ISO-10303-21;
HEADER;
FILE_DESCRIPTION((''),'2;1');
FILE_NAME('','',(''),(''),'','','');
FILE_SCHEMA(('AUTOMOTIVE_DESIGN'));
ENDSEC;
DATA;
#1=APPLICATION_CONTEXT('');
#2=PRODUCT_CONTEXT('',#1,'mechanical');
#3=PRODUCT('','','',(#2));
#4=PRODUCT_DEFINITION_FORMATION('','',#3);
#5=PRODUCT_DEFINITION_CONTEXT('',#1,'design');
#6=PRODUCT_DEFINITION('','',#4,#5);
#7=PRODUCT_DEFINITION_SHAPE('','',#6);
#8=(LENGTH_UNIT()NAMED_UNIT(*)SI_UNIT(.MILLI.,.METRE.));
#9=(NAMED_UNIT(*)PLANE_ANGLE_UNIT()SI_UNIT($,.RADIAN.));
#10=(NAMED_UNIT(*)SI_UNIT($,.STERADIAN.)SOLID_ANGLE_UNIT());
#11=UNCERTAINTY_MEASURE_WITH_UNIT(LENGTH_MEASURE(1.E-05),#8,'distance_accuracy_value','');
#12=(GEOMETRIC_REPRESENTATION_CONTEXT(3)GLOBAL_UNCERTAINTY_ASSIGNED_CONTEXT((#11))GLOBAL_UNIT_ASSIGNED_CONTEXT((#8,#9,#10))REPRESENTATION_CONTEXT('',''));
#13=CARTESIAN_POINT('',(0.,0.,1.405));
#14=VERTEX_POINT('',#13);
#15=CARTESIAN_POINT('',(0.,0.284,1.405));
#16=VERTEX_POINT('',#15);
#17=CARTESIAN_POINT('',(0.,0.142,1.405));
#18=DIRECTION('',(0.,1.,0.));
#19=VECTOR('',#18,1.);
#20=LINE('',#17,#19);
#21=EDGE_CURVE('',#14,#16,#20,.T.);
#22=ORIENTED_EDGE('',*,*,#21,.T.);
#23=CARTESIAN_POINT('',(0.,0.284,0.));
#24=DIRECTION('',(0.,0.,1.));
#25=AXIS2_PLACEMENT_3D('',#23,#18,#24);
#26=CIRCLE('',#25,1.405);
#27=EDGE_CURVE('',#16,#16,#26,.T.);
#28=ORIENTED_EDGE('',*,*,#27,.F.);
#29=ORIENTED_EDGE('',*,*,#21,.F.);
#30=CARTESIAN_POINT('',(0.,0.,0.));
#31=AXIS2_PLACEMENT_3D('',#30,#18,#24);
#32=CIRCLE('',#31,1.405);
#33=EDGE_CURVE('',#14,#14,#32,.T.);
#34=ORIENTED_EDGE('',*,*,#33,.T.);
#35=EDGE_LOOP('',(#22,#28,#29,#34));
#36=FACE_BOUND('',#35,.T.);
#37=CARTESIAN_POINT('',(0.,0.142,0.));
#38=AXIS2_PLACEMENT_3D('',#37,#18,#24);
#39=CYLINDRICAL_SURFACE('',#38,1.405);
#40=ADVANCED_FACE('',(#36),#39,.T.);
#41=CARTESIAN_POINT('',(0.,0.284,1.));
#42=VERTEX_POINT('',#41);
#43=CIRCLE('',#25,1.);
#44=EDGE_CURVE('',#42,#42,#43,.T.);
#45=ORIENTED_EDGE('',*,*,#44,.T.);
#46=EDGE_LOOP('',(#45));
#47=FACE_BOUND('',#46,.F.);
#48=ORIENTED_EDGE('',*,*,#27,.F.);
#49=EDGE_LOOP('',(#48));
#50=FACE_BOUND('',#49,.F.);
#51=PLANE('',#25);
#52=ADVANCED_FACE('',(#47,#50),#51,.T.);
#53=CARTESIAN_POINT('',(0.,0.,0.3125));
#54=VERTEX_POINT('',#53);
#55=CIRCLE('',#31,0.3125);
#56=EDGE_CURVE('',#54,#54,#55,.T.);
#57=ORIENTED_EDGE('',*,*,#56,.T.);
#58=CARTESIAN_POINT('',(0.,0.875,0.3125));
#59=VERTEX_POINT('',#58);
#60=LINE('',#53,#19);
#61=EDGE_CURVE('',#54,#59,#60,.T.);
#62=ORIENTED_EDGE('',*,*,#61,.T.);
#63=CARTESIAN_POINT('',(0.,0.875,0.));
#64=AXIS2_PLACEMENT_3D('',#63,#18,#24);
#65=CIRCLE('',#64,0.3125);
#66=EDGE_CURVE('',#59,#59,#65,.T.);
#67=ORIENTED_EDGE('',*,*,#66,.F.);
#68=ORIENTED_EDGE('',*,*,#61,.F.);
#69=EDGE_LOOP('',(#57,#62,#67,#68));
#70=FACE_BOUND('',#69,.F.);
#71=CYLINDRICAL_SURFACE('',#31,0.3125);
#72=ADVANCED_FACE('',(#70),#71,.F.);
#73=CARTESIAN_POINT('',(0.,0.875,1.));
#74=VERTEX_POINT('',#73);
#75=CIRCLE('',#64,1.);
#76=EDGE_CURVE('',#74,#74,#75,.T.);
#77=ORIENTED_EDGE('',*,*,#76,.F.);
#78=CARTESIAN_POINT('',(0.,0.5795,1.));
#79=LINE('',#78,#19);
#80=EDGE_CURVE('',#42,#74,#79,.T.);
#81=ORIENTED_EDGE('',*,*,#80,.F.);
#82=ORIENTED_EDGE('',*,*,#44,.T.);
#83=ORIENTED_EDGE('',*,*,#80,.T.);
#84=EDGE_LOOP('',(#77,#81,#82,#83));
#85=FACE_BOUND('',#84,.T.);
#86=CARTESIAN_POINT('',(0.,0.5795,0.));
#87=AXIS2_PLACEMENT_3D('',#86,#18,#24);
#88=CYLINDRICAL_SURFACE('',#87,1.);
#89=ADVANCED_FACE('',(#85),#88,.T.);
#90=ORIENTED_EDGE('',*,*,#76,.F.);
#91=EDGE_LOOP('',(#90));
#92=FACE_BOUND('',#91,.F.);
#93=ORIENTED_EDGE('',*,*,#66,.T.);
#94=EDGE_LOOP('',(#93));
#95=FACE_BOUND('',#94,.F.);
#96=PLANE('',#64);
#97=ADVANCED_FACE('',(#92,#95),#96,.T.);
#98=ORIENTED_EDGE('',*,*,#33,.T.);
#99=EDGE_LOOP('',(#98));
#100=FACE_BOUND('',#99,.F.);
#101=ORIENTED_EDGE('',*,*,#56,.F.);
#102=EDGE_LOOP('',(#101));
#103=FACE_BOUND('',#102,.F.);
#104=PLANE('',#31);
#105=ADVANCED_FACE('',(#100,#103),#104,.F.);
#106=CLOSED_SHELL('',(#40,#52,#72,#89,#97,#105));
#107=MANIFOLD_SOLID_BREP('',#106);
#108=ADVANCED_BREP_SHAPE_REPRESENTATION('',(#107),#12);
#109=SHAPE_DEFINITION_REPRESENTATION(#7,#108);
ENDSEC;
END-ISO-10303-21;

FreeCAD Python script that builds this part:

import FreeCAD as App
import Part
import Sketcher
Q = App.Units.Quantity


def add_polygon(sketch, points):
    """Adds a closed chain of lines whose ends are joined by coincident constraints."""
    first, n = sketch.GeometryCount, len(points)
    for a, b in zip(points, points[1:] + points[:1]):
        sketch.addGeometry(Part.LineSegment(App.Vector(*a, 0), App.Vector(*b, 0)), False)
    for i in range(n):
        sketch.addConstraint(Sketcher.Constraint("Coincident", first + i, 2, first + (i + 1) % n, 1))

doc = App.newDocument("Part")
body = doc.addObject("PartDesign::Body", "Body")

# Sketch on YZ plane
sketch1 = body.newObject("Sketcher::SketchObject", "Sketch")
sketch1.AttachmentSupport = (doc.getObject("YZ_Plane"), [""])
sketch1.MapMode = "FlatFace"
add_polygon(sketch1, [(0, 1.41), (0, 0.31), (0.88, 0.31), (0.88, 1), (0.28, 1), (0.28, 1.41)])  # lines 0-5
sketch1.addConstraint([
    Sketcher.Constraint("Vertical", 0),
    Sketcher.Constraint("Horizontal", 1),
    Sketcher.Constraint("Vertical", 2),
    Sketcher.Constraint("Horizontal", 3),
    Sketcher.Constraint("Vertical", 4),
    Sketcher.Constraint("Horizontal", 5),
    Sketcher.Constraint("PointOnObject", 0, 2, -2),
    Sketcher.Constraint("DistanceY", -1, 1, 2, 2, Q("1 mm")),
    Sketcher.Constraint("DistanceX", 1, 1, 1, 2, Q("0.875 mm")),
    Sketcher.Constraint("DistanceX", 3, 2, 3, 1, Q("0.591 mm")),
    Sketcher.Constraint("DistanceY", 4, 1, 4, 2, Q("0.405 mm")),
    Sketcher.Constraint("DistanceY", 0, 2, 0, 1, Q("1.0925 mm")),
])
revolution = body.newObject("PartDesign::Revolution", "Revolution")
revolution.Profile = sketch1
revolution.ReferenceAxis = (sketch1, ["H_Axis"])
revolution.Angle = 360

doc.recompute()
